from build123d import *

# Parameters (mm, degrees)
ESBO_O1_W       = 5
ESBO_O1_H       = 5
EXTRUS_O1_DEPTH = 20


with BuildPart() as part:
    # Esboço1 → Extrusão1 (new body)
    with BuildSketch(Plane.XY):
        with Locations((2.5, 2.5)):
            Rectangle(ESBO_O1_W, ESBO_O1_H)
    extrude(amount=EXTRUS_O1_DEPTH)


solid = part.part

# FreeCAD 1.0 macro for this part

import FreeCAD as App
import Part
import Sketcher

V = App.Vector

doc = App.newDocument("Part")
body = doc.addObject("PartDesign::Body", "Body")

# Sketch on XY plane
sketch1 = doc.addObject("Sketcher::SketchObject", "Sketch")
body.addObject(sketch1)
sketch1.AttachmentSupport = (doc.XY_Plane, [""])
sketch1.MapMode = "FlatFace"
sketch1.addGeometry(Part.LineSegment(V(0, 5, 0), V(0, 0, 0)), False)
sketch1.addGeometry(Part.LineSegment(V(0, 0, 0), V(5, 0, 0)), False)
sketch1.addGeometry(Part.LineSegment(V(5, 0, 0), V(5, 5, 0)), False)
sketch1.addGeometry(Part.LineSegment(V(5, 5, 0), V(0, 5, 0)), False)
sketch1.addConstraint(Sketcher.Constraint("Coincident", 0, 2, 1, 1))
sketch1.addConstraint(Sketcher.Constraint("Coincident", 1, 2, 2, 1))
sketch1.addConstraint(Sketcher.Constraint("Coincident", 2, 2, 3, 1))
sketch1.addConstraint(Sketcher.Constraint("Coincident", 3, 2, 0, 1))
sketch1.addConstraint(Sketcher.Constraint("Vertical", 0))
sketch1.addConstraint(Sketcher.Constraint("Horizontal", 1))
sketch1.addConstraint(Sketcher.Constraint("Vertical", 2))
sketch1.addConstraint(Sketcher.Constraint("Horizontal", 3))
sketch1.addConstraint(Sketcher.Constraint("Coincident", 0, 2, -1, 1))
sketch1.addConstraint(Sketcher.Constraint("Equal", 3, 0))
sketch1.addConstraint(Sketcher.Constraint("DistanceX", 1, 1, 1, 2, 5.0))
pad1 = doc.addObject("PartDesign::Pad", "Pad")
body.addObject(pad1)
pad1.Profile = sketch1
pad1.Length = 20

doc.recompute()
